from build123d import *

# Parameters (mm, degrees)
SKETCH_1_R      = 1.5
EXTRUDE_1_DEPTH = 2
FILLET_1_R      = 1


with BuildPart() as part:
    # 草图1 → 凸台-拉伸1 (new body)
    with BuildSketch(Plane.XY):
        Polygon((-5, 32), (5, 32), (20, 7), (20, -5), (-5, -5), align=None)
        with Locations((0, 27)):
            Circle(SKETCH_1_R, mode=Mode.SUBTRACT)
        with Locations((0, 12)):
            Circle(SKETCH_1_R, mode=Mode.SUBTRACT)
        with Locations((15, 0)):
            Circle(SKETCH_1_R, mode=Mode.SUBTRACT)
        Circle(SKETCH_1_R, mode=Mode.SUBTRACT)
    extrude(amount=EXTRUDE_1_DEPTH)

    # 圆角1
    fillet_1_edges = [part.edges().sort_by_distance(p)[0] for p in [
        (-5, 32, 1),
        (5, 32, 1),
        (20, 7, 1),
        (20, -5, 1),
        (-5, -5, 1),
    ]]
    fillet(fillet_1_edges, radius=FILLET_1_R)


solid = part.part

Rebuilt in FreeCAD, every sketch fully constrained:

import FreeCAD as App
import Part
import Sketcher
from FreeCAD import Vector


def edges_at(feature, points):
    """Names of the edges that pass closest to the given points."""
    edges = feature.Shape.Edges
    near = lambda p: min(range(len(edges)), key=lambda i: edges[i].distToShape(Part.Vertex(*p))[0])
    return sorted({f"Edge{near(p) + 1}" for p in points})

doc = App.newDocument("Part")
body = doc.addObject("PartDesign::Body", "Body")

# Sketch on XY plane
sketch1 = doc.addObject("Sketcher::SketchObject", "Sketch")
body.addObject(sketch1)
sketch1.AttachmentSupport = (doc.XY_Plane, [""])
sketch1.MapMode = "FlatFace"
sketch1.addGeometry([
    Part.LineSegment(Vector(5, 32, 0), Vector(-5, 32, 0)),  # 0
    Part.LineSegment(Vector(-5, 32, 0), Vector(-5, -5, 0)),  # 1
    Part.LineSegment(Vector(-5, -5, 0), Vector(20, -5, 0)),  # 2
    Part.LineSegment(Vector(20, -5, 0), Vector(20, 7, 0)),  # 3
    Part.LineSegment(Vector(20, 7, 0), Vector(5, 32, 0)),  # 4
    Part.Circle(Vector(15, 0, 0), Vector(0, 0, 1), 1.5),  # 5
    Part.Circle(Vector(0, 0, 0), Vector(0, 0, 1), 1.5),  # 6
    Part.Circle(Vector(0, 12, 0), Vector(0, 0, 1), 1.5),  # 7
    Part.Circle(Vector(0, 27, 0), Vector(0, 0, 1), 1.5),  # 8
], False)
sketch1.addConstraint([
    Sketcher.Constraint("Coincident", 0, 2, 1, 1),
    Sketcher.Constraint("Coincident", 1, 2, 2, 1),
    Sketcher.Constraint("Coincident", 2, 2, 3, 1),
    Sketcher.Constraint("Coincident", 3, 2, 4, 1),
    Sketcher.Constraint("Coincident", 4, 2, 0, 1),
    Sketcher.Constraint("Horizontal", 0),
    Sketcher.Constraint("Vertical", 1),
    Sketcher.Constraint("Horizontal", 2),
    Sketcher.Constraint("Vertical", 3),
    Sketcher.Constraint("Coincident", 6, 3, -1, 1),
    Sketcher.Constraint("Equal", 5, 6),
    Sketcher.Constraint("Equal", 6, 7),
    Sketcher.Constraint("Equal", 7, 8),
    Sketcher.Constraint("PointOnObject", 5, 3, -1),
    Sketcher.Constraint("PointOnObject", 7, 3, -2),
    Sketcher.Constraint("PointOnObject", 8, 3, -2),
    Sketcher.Constraint("Diameter", 5, 3.0),
    Sketcher.Constraint("DistanceX", 0, 2, 0, 1, 10.0),
    Sketcher.Constraint("DistanceX", 2, 1, 2, 2, 25.0),
    Sketcher.Constraint("DistanceY", 1, 2, 1, 1, 37.0),
    Sketcher.Constraint("DistanceY", 3, 1, 3, 2, 12.0),
    Sketcher.Constraint("DistanceX", -1, 1, 5, 3, 15.0),
    Sketcher.Constraint("DistanceY", -1, 1, 7, 3, 12.0),
    Sketcher.Constraint("DistanceY", -1, 1, 8, 3, 27.0),
    Sketcher.Constraint("DistanceX", 0, 2, -1, 1, 5.0),
    Sketcher.Constraint("DistanceY", -1, 1, 0, 2, 32.0),
])
pad1 = doc.addObject("PartDesign::Pad", "Pad")
body.addObject(pad1)
pad1.Profile = sketch1
pad1.Length = 2
doc.recompute()

fillet = doc.addObject("PartDesign::Fillet", "Fillet")
body.addObject(fillet)
fillet.Base = (pad1, edges_at(pad1, [
    (-5, 32, 1),
    (5, 32, 1),
    (20, 7, 1),
    (20, -5, 1),
    (-5, -5, 1),
]))
fillet.Radius = 1

doc.recompute()
